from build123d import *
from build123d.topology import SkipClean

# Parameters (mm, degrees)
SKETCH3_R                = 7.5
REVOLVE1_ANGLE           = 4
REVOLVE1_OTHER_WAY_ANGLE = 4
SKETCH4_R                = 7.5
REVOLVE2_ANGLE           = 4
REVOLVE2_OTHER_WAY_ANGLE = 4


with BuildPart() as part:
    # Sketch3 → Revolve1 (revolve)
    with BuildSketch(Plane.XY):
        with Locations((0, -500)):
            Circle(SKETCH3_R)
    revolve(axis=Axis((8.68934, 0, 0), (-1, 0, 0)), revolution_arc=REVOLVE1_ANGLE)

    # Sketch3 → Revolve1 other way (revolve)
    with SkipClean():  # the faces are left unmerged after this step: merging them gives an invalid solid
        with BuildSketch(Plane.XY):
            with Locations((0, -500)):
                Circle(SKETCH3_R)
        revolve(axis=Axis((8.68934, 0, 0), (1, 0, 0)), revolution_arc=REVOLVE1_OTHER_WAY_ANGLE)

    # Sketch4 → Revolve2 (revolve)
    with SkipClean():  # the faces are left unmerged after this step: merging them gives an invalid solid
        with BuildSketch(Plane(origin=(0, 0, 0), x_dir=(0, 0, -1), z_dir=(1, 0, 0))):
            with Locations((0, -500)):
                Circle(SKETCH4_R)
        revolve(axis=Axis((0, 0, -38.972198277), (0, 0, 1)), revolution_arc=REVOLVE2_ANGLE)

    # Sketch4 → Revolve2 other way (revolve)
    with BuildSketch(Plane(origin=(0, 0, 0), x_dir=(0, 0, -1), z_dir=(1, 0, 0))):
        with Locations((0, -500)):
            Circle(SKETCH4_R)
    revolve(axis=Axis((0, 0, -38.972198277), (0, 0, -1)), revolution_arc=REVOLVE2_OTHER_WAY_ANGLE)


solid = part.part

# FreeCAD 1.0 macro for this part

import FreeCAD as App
import Part
import Sketcher
from FreeCAD import Vector

doc = App.newDocument("Part")
params = doc.addObject("Spreadsheet::Sheet", "Params")
for row, (alias, value) in enumerate([
    ("sketch1_diameter", "15 mm"),
    ("revolution_angle", "4 deg"),
    ("sketch2_diameter", "15 mm"),
    ("revolution2_angle", "4 deg"),
    ("sketch3_diameter", "15 mm"),
    ("revolution3_angle", "4 deg"),
    ("sketch4_diameter", "15 mm"),
    ("revolution4_angle", "4 deg"),
], start=1):
    params.set(f"A{row}", alias)
    params.set(f"B{row}", "=" + value)
    params.setAlias(f"B{row}", alias)

body = doc.addObject("PartDesign::Body", "Body")

# Sketch on XY plane
sketch1 = body.newObject("Sketcher::SketchObject", "Sketch")
sketch1.AttachmentSupport = (doc.getObject("XY_Plane"), [""])
sketch1.MapMode = "FlatFace"
sketch1.addGeometry(Part.Circle(Vector(0, -500, 0), Vector(0, 0, 1), 7.5), False)
sketch1.addConstraint([
    Sketcher.Constraint("PointOnObject", 0, 3, -2),
    Sketcher.Constraint("Diameter", 0, 15.0),
    Sketcher.Constraint("DistanceY", 0, 3, -1, 1, 500.0),
])
sketch1.setExpression("Constraints[1]", "Params.sketch1_diameter")
revolution = body.newObject("PartDesign::Revolution", "Revolution")
revolution.Profile = sketch1
revolution.ReferenceAxis = (sketch1, ["H_Axis"])
revolution.setExpression("Angle", "Params.revolution_angle")
revolution.Reversed = True

# Sketch on XY plane
sketch2 = body.newObject("Sketcher::SketchObject", "Sketch001")
sketch2.AttachmentSupport = (doc.getObject("XY_Plane"), [""])
sketch2.MapMode = "FlatFace"
sketch2.addGeometry(Part.Circle(Vector(0, -500, 0), Vector(0, 0, 1), 7.5), False)
sketch2.addConstraint([
    Sketcher.Constraint("PointOnObject", 0, 3, -2),
    Sketcher.Constraint("Diameter", 0, 15.0),
    Sketcher.Constraint("DistanceY", 0, 3, -1, 1, 500.0),
])
sketch2.setExpression("Constraints[1]", "Params.sketch2_diameter")
revolution2 = body.newObject("PartDesign::Revolution", "Revolution001")
revolution2.Profile = sketch2
revolution2.ReferenceAxis = (sketch2, ["H_Axis"])
revolution2.setExpression("Angle", "Params.revolution2_angle")

# Sketch on YZ plane
sketch3 = body.newObject("Sketcher::SketchObject", "Sketch002")
sketch3.AttachmentSupport = (doc.getObject("YZ_Plane"), [""])
sketch3.MapMode = "FlatFace"
sketch3.addGeometry(Part.Circle(Vector(-500, 0, 0), Vector(0, 0, 1), 7.5), False)
sketch3.addConstraint([
    Sketcher.Constraint("PointOnObject", 0, 3, -1),
    Sketcher.Constraint("Diameter", 0, 15.0),
    Sketcher.Constraint("DistanceX", 0, 3, -1, 1, 500.0),
])
sketch3.setExpression("Constraints[1]", "Params.sketch3_diameter")
revolution3 = body.newObject("PartDesign::Revolution", "Revolution002")
revolution3.Profile = sketch3
revolution3.ReferenceAxis = (sketch3, ["V_Axis"])
revolution3.setExpression("Angle", "Params.revolution3_angle")

# Sketch on YZ plane
sketch4 = body.newObject("Sketcher::SketchObject", "Sketch003")
sketch4.AttachmentSupport = (doc.getObject("YZ_Plane"), [""])
sketch4.MapMode = "FlatFace"
sketch4.addGeometry(Part.Circle(Vector(-500, 0, 0), Vector(0, 0, 1), 7.5), False)
sketch4.addConstraint([
    Sketcher.Constraint("PointOnObject", 0, 3, -1),
    Sketcher.Constraint("Diameter", 0, 15.0),
    Sketcher.Constraint("DistanceX", 0, 3, -1, 1, 500.0),
])
sketch4.setExpression("Constraints[1]", "Params.sketch4_diameter")
revolution4 = body.newObject("PartDesign::Revolution", "Revolution003")
revolution4.Profile = sketch4
revolution4.ReferenceAxis = (sketch4, ["V_Axis"])
revolution4.setExpression("Angle", "Params.revolution4_angle")
revolution4.Reversed = True

doc.recompute()
